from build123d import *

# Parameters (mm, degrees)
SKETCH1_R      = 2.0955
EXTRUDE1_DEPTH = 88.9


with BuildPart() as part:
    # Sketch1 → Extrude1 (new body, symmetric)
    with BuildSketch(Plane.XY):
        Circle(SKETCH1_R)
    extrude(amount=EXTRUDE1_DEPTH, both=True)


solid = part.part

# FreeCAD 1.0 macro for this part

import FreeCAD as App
import Part
import Sketcher
from FreeCAD import Vector
Q = App.Units.Quantity

doc = App.newDocument("Part")
body = doc.addObject("PartDesign::Body", "Body")

sketch1 = body.newObject("Sketcher::SketchObject", "Sketch")
sketch1.AttachmentSupport = (doc.getObject("XY_Plane"), [""])
sketch1.MapMode = "FlatFace"
sketch1.addGeometry(Part.Circle(Vector(0, 0, 0), Vector(0, 0, 1), 2.1), False)
sketch1.addConstraint(Sketcher.Constraint("Coincident", 0, 3, -1, 1))
sketch1.addConstraint(Sketcher.Constraint("Diameter", 0, Q("0.165 in")))
pad1 = body.newObject("PartDesign::Pad", "Pad")
pad1.Profile = sketch1
pad1.Length = Q("7 in")
pad1.Midplane = True

doc.recompute()
